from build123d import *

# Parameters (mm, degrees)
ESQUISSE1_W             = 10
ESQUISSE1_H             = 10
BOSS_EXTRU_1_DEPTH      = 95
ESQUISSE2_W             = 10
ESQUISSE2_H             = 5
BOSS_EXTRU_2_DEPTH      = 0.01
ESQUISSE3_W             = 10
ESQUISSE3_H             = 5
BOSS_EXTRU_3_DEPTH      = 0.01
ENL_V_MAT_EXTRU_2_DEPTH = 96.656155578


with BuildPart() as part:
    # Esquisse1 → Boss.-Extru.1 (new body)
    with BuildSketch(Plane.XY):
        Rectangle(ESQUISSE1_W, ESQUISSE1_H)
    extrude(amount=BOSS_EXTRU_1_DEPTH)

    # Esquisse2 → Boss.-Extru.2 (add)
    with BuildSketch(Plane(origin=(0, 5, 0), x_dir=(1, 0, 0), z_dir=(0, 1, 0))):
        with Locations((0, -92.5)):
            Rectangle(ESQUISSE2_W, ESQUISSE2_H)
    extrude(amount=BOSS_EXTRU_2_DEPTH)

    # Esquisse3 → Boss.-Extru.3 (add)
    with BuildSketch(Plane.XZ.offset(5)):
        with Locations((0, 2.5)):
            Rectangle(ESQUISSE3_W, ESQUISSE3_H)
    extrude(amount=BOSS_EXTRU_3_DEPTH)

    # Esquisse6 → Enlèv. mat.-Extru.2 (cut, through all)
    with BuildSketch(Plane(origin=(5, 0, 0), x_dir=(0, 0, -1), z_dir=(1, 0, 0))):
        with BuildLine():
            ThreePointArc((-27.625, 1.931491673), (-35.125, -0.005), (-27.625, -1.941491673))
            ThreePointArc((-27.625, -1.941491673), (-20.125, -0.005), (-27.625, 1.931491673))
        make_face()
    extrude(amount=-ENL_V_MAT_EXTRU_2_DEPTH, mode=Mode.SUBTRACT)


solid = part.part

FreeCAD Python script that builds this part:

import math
import FreeCAD as App
import Part
import Sketcher
from FreeCAD import Vector
Q = App.Units.Quantity


def add_polygon(sketch, points):
    """Adds a closed chain of lines whose ends are joined by coincident constraints."""
    first, n = sketch.GeometryCount, len(points)
    for a, b in zip(points, points[1:] + points[:1]):
        sketch.addGeometry(Part.LineSegment(App.Vector(*a, 0), App.Vector(*b, 0)), False)
    for i in range(n):
        sketch.addConstraint(Sketcher.Constraint("Coincident", first + i, 2, first + (i + 1) % n, 1))

doc = App.newDocument("Part")
body = doc.addObject("PartDesign::Body", "Body")

sketch1 = doc.addObject("Sketcher::SketchObject", "Sketch")
body.addObject(sketch1)
sketch1.AttachmentSupport = (doc.XY_Plane, [""])
sketch1.MapMode = "FlatFace"
add_polygon(sketch1, [(-5, 5), (-5, -5), (5, -5), (5, 5)])
sketch1.addConstraint([
    Sketcher.Constraint("Vertical", 0),
    Sketcher.Constraint("Horizontal", 1),
    Sketcher.Constraint("Vertical", 2),
    Sketcher.Constraint("Horizontal", 3),
    Sketcher.Constraint("Symmetric", 0, 2, 2, 2, -1, 1),
    Sketcher.Constraint("Equal", 3, 0),
    Sketcher.Constraint("DistanceX", 1, 1, 1, 2, Q("10 mm")),
])
pad1 = doc.addObject("PartDesign::Pad", "Pad")
body.addObject(pad1)
pad1.Profile = sketch1
pad1.Length = 95

sketch2 = doc.addObject("Sketcher::SketchObject", "Sketch001")
body.addObject(sketch2)
sketch2.AttachmentSupport = (doc.XZ_Plane, [""])
sketch2.MapMode = "FlatFace"
sketch2.AttachmentOffset = App.Placement(Vector(0, 0, -5), App.Rotation())
add_polygon(sketch2, [(-5, 90), (-5, 95), (5, 95), (5, 90)])
sketch2.addConstraint([
    Sketcher.Constraint("Vertical", 0),
    Sketcher.Constraint("Horizontal", 1),
    Sketcher.Constraint("Vertical", 2),
    Sketcher.Constraint("Horizontal", 3),
    Sketcher.Constraint("DistanceX", 1, 1, 1, 2, Q("10 mm")),
    Sketcher.Constraint("DistanceY", 0, 1, 0, 2, Q("5 mm")),
    Sketcher.Constraint("DistanceX", 0, 2, -1, 1, Q("5 mm")),
    Sketcher.Constraint("DistanceY", -1, 1, 0, 2, Q("95 mm")),
])
pad2 = doc.addObject("PartDesign::Pad", "Pad001")
body.addObject(pad2)
pad2.Profile = sketch2
pad2.Length = 0.01
pad2.Reversed = True

sketch3 = doc.addObject("Sketcher::SketchObject", "Sketch002")
body.addObject(sketch3)
sketch3.AttachmentSupport = (doc.XZ_Plane, [""])
sketch3.MapMode = "FlatFace"
sketch3.AttachmentOffset = App.Placement(Vector(0, 0, 5), App.Rotation())
add_polygon(sketch3, [(-5, 5), (-5, 0), (5, 0), (5, 5)])
sketch3.addConstraint([
    Sketcher.Constraint("Vertical", 0),
    Sketcher.Constraint("Horizontal", 1),
    Sketcher.Constraint("Vertical", 2),
    Sketcher.Constraint("Horizontal", 3),
    Sketcher.Constraint("Symmetric", 0, 2, 1, 2, -1, 1),
    Sketcher.Constraint("DistanceX", 1, 1, 1, 2, Q("10 mm")),
    Sketcher.Constraint("DistanceY", 0, 2, 0, 1, Q("5 mm")),
])
pad3 = doc.addObject("PartDesign::Pad", "Pad002")
body.addObject(pad3)
pad3.Profile = sketch3
pad3.Length = 0.01

sketch4 = doc.addObject("Sketcher::SketchObject", "Sketch003")
body.addObject(sketch4)
sketch4.AttachmentSupport = (doc.YZ_Plane, [""])
sketch4.MapMode = "FlatFace"
sketch4.AttachmentOffset = App.Placement(Vector(0, 0, 5), App.Rotation())
sketch4.addGeometry([
    Part.ArcOfCircle(Part.Circle(Vector(0, 31.1, 0), Vector(0, 0, 1), 4), math.radians(-61), math.radians(241)),
    Part.ArcOfCircle(Part.Circle(Vector(0, 24.1, 0), Vector(0, 0, 1), 4), math.radians(119), math.radians(421)),
], False)
sketch4.addConstraint([
    Sketcher.Constraint("Coincident", 0, 1, 1, 2),
    Sketcher.Constraint("Coincident", 1, 1, 0, 2),
    Sketcher.Constraint("Equal", 0, 1),
    Sketcher.Constraint("Horizontal", 0, 1, 1, 1),
    Sketcher.Constraint("Radius", 0, Q("4 mm")),
    Sketcher.Constraint("DistanceY", 1, 3, 0, 3, Q("7 mm")),
    Sketcher.Constraint("DistanceX", 0, 3, -1, 1, Q("0.005 mm")),
    Sketcher.Constraint("DistanceY", -1, 1, 0, 3, Q("31.125 mm")),
])
pocket1 = doc.addObject("PartDesign::Pocket", "Pocket")
body.addObject(pocket1)
pocket1.Profile = sketch4
pocket1.Type = "ThroughAll"

doc.recompute()
